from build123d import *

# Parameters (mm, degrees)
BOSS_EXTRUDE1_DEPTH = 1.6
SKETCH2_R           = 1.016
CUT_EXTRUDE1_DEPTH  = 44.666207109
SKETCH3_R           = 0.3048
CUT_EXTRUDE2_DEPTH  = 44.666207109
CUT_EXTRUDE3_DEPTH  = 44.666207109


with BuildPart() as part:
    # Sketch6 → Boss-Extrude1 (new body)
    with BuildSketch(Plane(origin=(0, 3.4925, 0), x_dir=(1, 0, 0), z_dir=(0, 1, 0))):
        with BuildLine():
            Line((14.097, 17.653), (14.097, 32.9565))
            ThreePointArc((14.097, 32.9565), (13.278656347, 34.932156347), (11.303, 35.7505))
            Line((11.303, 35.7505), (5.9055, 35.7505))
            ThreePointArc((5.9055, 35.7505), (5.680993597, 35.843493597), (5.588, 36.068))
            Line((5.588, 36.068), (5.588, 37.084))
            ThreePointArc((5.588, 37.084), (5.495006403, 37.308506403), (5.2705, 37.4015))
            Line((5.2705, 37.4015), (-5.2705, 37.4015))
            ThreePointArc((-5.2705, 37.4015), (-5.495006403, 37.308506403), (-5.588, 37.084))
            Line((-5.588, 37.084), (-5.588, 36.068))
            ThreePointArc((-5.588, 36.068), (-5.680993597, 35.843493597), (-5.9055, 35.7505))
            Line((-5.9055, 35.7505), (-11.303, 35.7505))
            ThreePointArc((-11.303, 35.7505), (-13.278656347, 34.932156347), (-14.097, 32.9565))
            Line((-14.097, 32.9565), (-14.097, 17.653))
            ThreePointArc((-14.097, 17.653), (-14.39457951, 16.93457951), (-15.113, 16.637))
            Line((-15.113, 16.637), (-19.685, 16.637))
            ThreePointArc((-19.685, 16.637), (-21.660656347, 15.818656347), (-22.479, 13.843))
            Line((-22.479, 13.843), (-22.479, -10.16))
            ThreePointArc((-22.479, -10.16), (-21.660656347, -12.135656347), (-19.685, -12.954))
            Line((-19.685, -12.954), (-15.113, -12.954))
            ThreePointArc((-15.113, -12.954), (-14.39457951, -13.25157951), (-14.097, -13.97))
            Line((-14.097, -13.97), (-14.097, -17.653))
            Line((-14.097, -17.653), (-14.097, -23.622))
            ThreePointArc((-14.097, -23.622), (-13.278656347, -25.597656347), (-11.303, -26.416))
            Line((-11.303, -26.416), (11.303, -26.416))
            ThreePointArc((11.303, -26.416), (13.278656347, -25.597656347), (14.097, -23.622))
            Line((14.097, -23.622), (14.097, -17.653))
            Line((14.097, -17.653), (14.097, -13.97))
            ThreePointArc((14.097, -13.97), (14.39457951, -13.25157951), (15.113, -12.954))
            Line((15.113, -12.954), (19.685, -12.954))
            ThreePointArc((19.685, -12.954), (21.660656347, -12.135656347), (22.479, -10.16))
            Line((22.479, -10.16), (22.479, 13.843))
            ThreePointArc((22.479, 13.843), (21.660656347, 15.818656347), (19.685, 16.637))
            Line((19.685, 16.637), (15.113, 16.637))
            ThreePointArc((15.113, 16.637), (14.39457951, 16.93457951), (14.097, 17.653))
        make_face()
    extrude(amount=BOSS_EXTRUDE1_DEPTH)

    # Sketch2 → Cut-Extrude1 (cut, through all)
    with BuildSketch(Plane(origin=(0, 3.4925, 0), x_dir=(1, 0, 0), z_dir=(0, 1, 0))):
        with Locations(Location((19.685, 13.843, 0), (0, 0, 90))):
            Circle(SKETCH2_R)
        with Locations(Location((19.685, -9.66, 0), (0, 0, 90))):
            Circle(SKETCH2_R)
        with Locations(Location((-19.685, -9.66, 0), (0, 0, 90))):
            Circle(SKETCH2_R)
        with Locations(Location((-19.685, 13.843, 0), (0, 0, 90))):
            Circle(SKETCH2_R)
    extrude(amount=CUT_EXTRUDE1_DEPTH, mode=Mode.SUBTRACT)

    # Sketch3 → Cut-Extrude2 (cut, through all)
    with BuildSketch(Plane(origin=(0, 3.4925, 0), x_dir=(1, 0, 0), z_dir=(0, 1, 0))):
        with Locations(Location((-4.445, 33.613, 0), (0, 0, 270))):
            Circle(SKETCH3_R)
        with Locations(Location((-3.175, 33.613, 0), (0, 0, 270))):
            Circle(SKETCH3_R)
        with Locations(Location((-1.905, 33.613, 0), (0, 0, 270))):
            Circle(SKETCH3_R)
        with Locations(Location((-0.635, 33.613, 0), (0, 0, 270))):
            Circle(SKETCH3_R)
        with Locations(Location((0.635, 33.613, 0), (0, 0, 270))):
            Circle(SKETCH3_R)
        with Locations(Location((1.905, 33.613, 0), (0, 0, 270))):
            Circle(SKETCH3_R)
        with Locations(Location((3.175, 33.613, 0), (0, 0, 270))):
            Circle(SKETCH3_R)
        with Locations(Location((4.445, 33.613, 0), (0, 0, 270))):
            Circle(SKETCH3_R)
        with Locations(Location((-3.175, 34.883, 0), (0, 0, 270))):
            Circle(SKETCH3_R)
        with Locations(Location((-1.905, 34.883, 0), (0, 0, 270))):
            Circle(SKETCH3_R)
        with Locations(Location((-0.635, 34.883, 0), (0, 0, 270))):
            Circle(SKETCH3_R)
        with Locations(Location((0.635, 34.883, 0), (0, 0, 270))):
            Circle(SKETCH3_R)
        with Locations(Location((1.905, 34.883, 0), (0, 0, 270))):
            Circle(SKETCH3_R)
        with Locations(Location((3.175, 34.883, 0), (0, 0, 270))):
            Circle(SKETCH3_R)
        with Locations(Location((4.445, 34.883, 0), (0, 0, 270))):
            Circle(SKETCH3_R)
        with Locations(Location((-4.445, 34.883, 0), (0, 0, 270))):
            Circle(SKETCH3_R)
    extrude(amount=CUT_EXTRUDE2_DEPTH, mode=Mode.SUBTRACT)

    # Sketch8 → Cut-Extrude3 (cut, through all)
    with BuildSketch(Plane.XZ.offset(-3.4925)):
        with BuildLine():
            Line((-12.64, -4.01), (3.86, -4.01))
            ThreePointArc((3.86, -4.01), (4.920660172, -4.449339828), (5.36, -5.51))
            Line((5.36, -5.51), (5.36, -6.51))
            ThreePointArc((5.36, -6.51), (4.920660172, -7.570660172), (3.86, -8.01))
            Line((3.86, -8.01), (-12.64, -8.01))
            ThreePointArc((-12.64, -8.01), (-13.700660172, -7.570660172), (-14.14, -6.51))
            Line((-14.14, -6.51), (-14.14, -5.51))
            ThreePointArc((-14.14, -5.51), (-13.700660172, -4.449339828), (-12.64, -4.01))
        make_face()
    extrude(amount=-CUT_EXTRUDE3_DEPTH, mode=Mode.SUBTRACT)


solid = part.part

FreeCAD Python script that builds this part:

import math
import FreeCAD as App
import Part
import Sketcher
from FreeCAD import Vector
Q = App.Units.Quantity

doc = App.newDocument("Part")
body = doc.addObject("PartDesign::Body", "Body")

# Sketch on XZ plane
sketch1 = body.newObject("Sketcher::SketchObject", "Sketch")
sketch1.AttachmentSupport = (doc.getObject("XZ_Plane"), [""])
sketch1.MapMode = "FlatFace"
sketch1.AttachmentOffset = App.Placement(Vector(0, 0, -0.1375 * 25.4), App.Rotation())
sketch1.addGeometry([
    Part.LineSegment(Vector(14.1, -17.65, 0), Vector(14.1, -32.96, 0)),  # 0
    Part.ArcOfCircle(Part.Circle(Vector(11.3, -32.96, 0), Vector(0, 0, 1), 2.79), math.radians(-90), math.radians(0)),  # 1
    Part.LineSegment(Vector(11.3, -35.75, 0), Vector(5.91, -35.75, 0)),  # 2
    Part.ArcOfCircle(Part.Circle(Vector(5.91, -36.07, 0), Vector(0, 0, 1), 0.32), math.radians(90), math.radians(180)),  # 3
    Part.LineSegment(Vector(5.59, -36.07, 0), Vector(5.59, -37.08, 0)),  # 4
    Part.ArcOfCircle(Part.Circle(Vector(5.27, -37.08, 0), Vector(0, 0, 1), 0.32), math.radians(-90), math.radians(0)),  # 5
    Part.LineSegment(Vector(5.27, -37.4, 0), Vector(-5.27, -37.4, 0)),  # 6
    Part.ArcOfCircle(Part.Circle(Vector(-5.27, -37.08, 0), Vector(0, 0, 1), 0.32), math.radians(180), math.radians(270)),  # 7
    Part.LineSegment(Vector(-5.59, -37.08, 0), Vector(-5.59, -36.07, 0)),  # 8
    Part.ArcOfCircle(Part.Circle(Vector(-5.91, -36.07, 0), Vector(0, 0, 1), 0.32), math.radians(0), math.radians(90)),  # 9
    Part.LineSegment(Vector(-5.91, -35.75, 0), Vector(-11.3, -35.75, 0)),  # 10
    Part.ArcOfCircle(Part.Circle(Vector(-11.3, -32.96, 0), Vector(0, 0, 1), 2.79), math.radians(180), math.radians(270)),  # 11
    Part.LineSegment(Vector(-14.1, -32.96, 0), Vector(-14.1, -17.65, 0)),  # 12
    Part.ArcOfCircle(Part.Circle(Vector(-15.11, -17.65, 0), Vector(0, 0, 1), 1.02), math.radians(0), math.radians(90)),  # 13
    Part.LineSegment(Vector(-15.11, -16.64, 0), Vector(-19.68, -16.64, 0)),  # 14
    Part.ArcOfCircle(Part.Circle(Vector(-19.69, -13.84, 0), Vector(0, 0, 1), 2.79), math.radians(180), math.radians(270)),  # 15
    Part.LineSegment(Vector(-22.48, -13.84, 0), Vector(-22.48, 10.16, 0)),  # 16
    Part.ArcOfCircle(Part.Circle(Vector(-19.69, 10.16, 0), Vector(0, 0, 1), 2.79), math.radians(90), math.radians(180)),  # 17
    Part.LineSegment(Vector(-19.68, 12.95, 0), Vector(-15.11, 12.95, 0)),  # 18
    Part.ArcOfCircle(Part.Circle(Vector(-15.11, 13.97, 0), Vector(0, 0, 1), 1.02), math.radians(-90), math.radians(0)),  # 19
    Part.LineSegment(Vector(-14.1, 13.97, 0), Vector(-14.1, 23.62, 0)),  # 20
    Part.ArcOfCircle(Part.Circle(Vector(-11.3, 23.62, 0), Vector(0, 0, 1), 2.79), math.radians(90), math.radians(180)),  # 21
    Part.LineSegment(Vector(-11.3, 26.42, 0), Vector(11.3, 26.42, 0)),  # 22
    Part.ArcOfCircle(Part.Circle(Vector(11.3, 23.62, 0), Vector(0, 0, 1), 2.79), math.radians(0), math.radians(90)),  # 23
    Part.LineSegment(Vector(14.1, 23.62, 0), Vector(14.1, 13.97, 0)),  # 24
    Part.ArcOfCircle(Part.Circle(Vector(15.11, 13.97, 0), Vector(0, 0, 1), 1.02), math.radians(180), math.radians(270)),  # 25
    Part.LineSegment(Vector(15.11, 12.95, 0), Vector(19.68, 12.95, 0)),  # 26
    Part.ArcOfCircle(Part.Circle(Vector(19.69, 10.16, 0), Vector(0, 0, 1), 2.79), math.radians(0), math.radians(90)),  # 27
    Part.LineSegment(Vector(22.48, 10.16, 0), Vector(22.48, -13.84, 0)),  # 28
    Part.ArcOfCircle(Part.Circle(Vector(19.69, -13.84, 0), Vector(0, 0, 1), 2.79), math.radians(-90), math.radians(0)),  # 29
    Part.LineSegment(Vector(19.68, -16.64, 0), Vector(15.11, -16.64, 0)),  # 30
    Part.ArcOfCircle(Part.Circle(Vector(15.11, -17.65, 0), Vector(0, 0, 1), 1.02), math.radians(90), math.radians(180)),  # 31
], False)
sketch1.addConstraint([
    Sketcher.Constraint("Tangent", 0, 2, 1, 2),
    Sketcher.Constraint("Tangent", 1, 1, 2, 1),
    Sketcher.Constraint("Tangent", 2, 2, 3, 1),
    Sketcher.Constraint("Tangent", 3, 2, 4, 1),
    Sketcher.Constraint("Tangent", 4, 2, 5, 2),
    Sketcher.Constraint("Tangent", 5, 1, 6, 1),
    Sketcher.Constraint("Tangent", 6, 2, 7, 2),
    Sketcher.Constraint("Tangent", 7, 1, 8, 1),
    Sketcher.Constraint("Tangent", 8, 2, 9, 1),
    Sketcher.Constraint("Tangent", 9, 2, 10, 1),
    Sketcher.Constraint("Tangent", 10, 2, 11, 2),
    Sketcher.Constraint("Tangent", 11, 1, 12, 1),
    Sketcher.Constraint("Tangent", 12, 2, 13, 1),
    Sketcher.Constraint("Tangent", 13, 2, 14, 1),
    Sketcher.Constraint("Tangent", 14, 2, 15, 2),
    Sketcher.Constraint("Tangent", 15, 1, 16, 1),
    Sketcher.Constraint("Tangent", 16, 2, 17, 2),
    Sketcher.Constraint("Tangent", 17, 1, 18, 1),
    Sketcher.Constraint("Tangent", 18, 2, 19, 1),
    Sketcher.Constraint("Tangent", 19, 2, 20, 1),
    Sketcher.Constraint("Tangent", 20, 2, 21, 2),
    Sketcher.Constraint("Tangent", 21, 1, 22, 1),
    Sketcher.Constraint("Tangent", 22, 2, 23, 2),
    Sketcher.Constraint("Tangent", 23, 1, 24, 1),
    Sketcher.Constraint("Tangent", 24, 2, 25, 1),
    Sketcher.Constraint("Tangent", 25, 2, 26, 1),
    Sketcher.Constraint("Tangent", 26, 2, 27, 2),
    Sketcher.Constraint("Tangent", 27, 1, 28, 1),
    Sketcher.Constraint("Tangent", 28, 2, 29, 2),
    Sketcher.Constraint("Tangent", 29, 1, 30, 1),
    Sketcher.Constraint("Tangent", 30, 2, 31, 1),
    Sketcher.Constraint("Tangent", 31, 2, 0, 1),
    Sketcher.Constraint("Vertical", 0),
    Sketcher.Constraint("Horizontal", 2),
    Sketcher.Constraint("Vertical", 4),
    Sketcher.Constraint("Horizontal", 6),
    Sketcher.Constraint("Vertical", 8),
    Sketcher.Constraint("Horizontal", 10),
    Sketcher.Constraint("Vertical", 12),
    Sketcher.Constraint("Horizontal", 14),
    Sketcher.Constraint("Vertical", 16),
    Sketcher.Constraint("Horizontal", 18),
    Sketcher.Constraint("Vertical", 20),
    Sketcher.Constraint("Horizontal", 22),
    Sketcher.Constraint("Vertical", 24),
    Sketcher.Constraint("Horizontal", 26),
    Sketcher.Constraint("Vertical", 28),
    Sketcher.Constraint("Horizontal", 30),
    Sketcher.Constraint("Equal", 3, 5),
    Sketcher.Constraint("Equal", 5, 7),
    Sketcher.Constraint("Equal", 7, 9),
    Sketcher.Constraint("Equal", 1, 11),
    Sketcher.Constraint("Equal", 11, 15),
    Sketcher.Constraint("Equal", 15, 17),
    Sketcher.Constraint("Equal", 13, 19),
    Sketcher.Constraint("Equal", 17, 21),
    Sketcher.Constraint("Equal", 21, 23),
    Sketcher.Constraint("Equal", 19, 25),
    Sketcher.Constraint("Equal", 23, 27),
    Sketcher.Constraint("Equal", 27, 29),
    Sketcher.Constraint("Equal", 25, 31),
    Sketcher.Constraint("Symmetric", 3, 3, 9, 3, -2),
    Sketcher.Constraint("Symmetric", 19, 3, 25, 3, -2),
    Sketcher.Constraint("Symmetric", 15, 3, 29, 3, -2),
    Sketcher.Constraint("Vertical", 13, 3, 19, 3),
    Sketcher.Constraint("Vertical", 1, 3, 23, 3),
    Sketcher.Constraint("Radius", 1, Q("0.11 in")),
    Sketcher.Constraint("Radius", 13, Q("0.04 in")),
    Sketcher.Constraint("DistanceX", 21, 3, 23, 1, Q("1 in")),
    Sketcher.Constraint("DistanceX", 14, 2, 14, 1, Q("0.18 in")),
    Sketcher.Constraint("DistanceY", 4, 2, 4, 1, Q("0.04 in")),
    Sketcher.Constraint("DistanceY", 20, 1, 20, 2, Q("0.38 in")),
    Sketcher.Constraint("DistanceY", -1, 1, 17, 3, Q("0.4 in")),
    Sketcher.Constraint("Radius", 3, Q("0.0125 in")),
    Sketcher.Constraint("DistanceX", 6, 2, 6, 1, Q("0.415 in")),
    Sketcher.Constraint("DistanceY", 16, 1, 16, 2, Q("0.945 in")),
    Sketcher.Constraint("DistanceY", 3, 3, -1, 1, Q("1.42 in")),
])
pad1 = body.newObject("PartDesign::Pad", "Pad")
pad1.Profile = sketch1
pad1.Length = 1.6
pad1.Reversed = True

# Sketch on XZ plane
sketch2 = body.newObject("Sketcher::SketchObject", "Sketch001")
sketch2.AttachmentSupport = (doc.getObject("XZ_Plane"), [""])
sketch2.MapMode = "FlatFace"
sketch2.AttachmentOffset = App.Placement(Vector(0, 0, -0.1375 * 25.4), App.Rotation())
sketch2.addGeometry([
    Part.Circle(Vector(19.7, -13.8, 0), Vector(0, 0, 1), 1),
    Part.Circle(Vector(19.7, 9.7, 0), Vector(0, 0, 1), 1),
    Part.Circle(Vector(-19.7, 9.7, 0), Vector(0, 0, 1), 1),
    Part.Circle(Vector(-19.7, -13.8, 0), Vector(0, 0, 1), 1),
], False)
sketch2.addConstraint([
    Sketcher.Constraint("Equal", 0, 1),
    Sketcher.Constraint("Equal", 1, 2),
    Sketcher.Constraint("Equal", 2, 3),
    Sketcher.Constraint("Symmetric", 1, 3, 2, 3, -2),
    Sketcher.Constraint("Symmetric", 0, 3, 3, 3, -2),
    Sketcher.Constraint("Vertical", 0, 3, 1, 3),
    Sketcher.Constraint("Diameter", 0, Q("0.08 in")),
    Sketcher.Constraint("DistanceX", 2, 3, 1, 3, Q("1.55 in")),
    Sketcher.Constraint("DistanceY", 0, 3, -1, 1, Q("0.545 in")),
    Sketcher.Constraint("DistanceY", -1, 1, 1, 3, 9.66),
])
pocket1 = body.newObject("PartDesign::Pocket", "Pocket")
pocket1.Profile = sketch2
pocket1.Type = "ThroughAll"

# Sketch on XZ plane
sketch3 = body.newObject("Sketcher::SketchObject", "Sketch002")
sketch3.AttachmentSupport = (doc.getObject("XZ_Plane"), [""])
sketch3.MapMode = "FlatFace"
sketch3.AttachmentOffset = App.Placement(Vector(0, 0, -0.1375 * 25.4), App.Rotation())
sketch3.addGeometry([
    Part.Circle(Vector(-4.45, -33.61, 0), Vector(0, 0, 1), 0.3),  # 0
    Part.Circle(Vector(-3.17, -33.61, 0), Vector(0, 0, 1), 0.3),  # 1
    Part.Circle(Vector(-1.91, -33.61, 0), Vector(0, 0, 1), 0.3),  # 2
    Part.Circle(Vector(-0.64, -33.61, 0), Vector(0, 0, 1), 0.3),  # 3
    Part.Circle(Vector(0.64, -33.61, 0), Vector(0, 0, 1), 0.3),  # 4
    Part.Circle(Vector(1.91, -33.61, 0), Vector(0, 0, 1), 0.3),  # 5
    Part.Circle(Vector(3.17, -33.61, 0), Vector(0, 0, 1), 0.3),  # 6
    Part.Circle(Vector(4.45, -33.61, 0), Vector(0, 0, 1), 0.3),  # 7
    Part.Circle(Vector(-3.17, -34.88, 0), Vector(0, 0, 1), 0.3),  # 8
    Part.Circle(Vector(-1.91, -34.88, 0), Vector(0, 0, 1), 0.3),  # 9
    Part.Circle(Vector(-0.64, -34.88, 0), Vector(0, 0, 1), 0.3),  # 10
    Part.Circle(Vector(0.64, -34.88, 0), Vector(0, 0, 1), 0.3),  # 11
    Part.Circle(Vector(1.91, -34.88, 0), Vector(0, 0, 1), 0.3),  # 12
    Part.Circle(Vector(3.17, -34.88, 0), Vector(0, 0, 1), 0.3),  # 13
    Part.Circle(Vector(4.45, -34.88, 0), Vector(0, 0, 1), 0.3),  # 14
    Part.Circle(Vector(-4.45, -34.88, 0), Vector(0, 0, 1), 0.3),  # 15
], False)
sketch3.addConstraint([
    Sketcher.Constraint("Equal", 0, 1),
    Sketcher.Constraint("Equal", 1, 2),
    Sketcher.Constraint("Equal", 2, 3),
    Sketcher.Constraint("Equal", 3, 4),
    Sketcher.Constraint("Equal", 4, 5),
    Sketcher.Constraint("Equal", 5, 6),
    Sketcher.Constraint("Equal", 6, 7),
    Sketcher.Constraint("Equal", 7, 8),
    Sketcher.Constraint("Equal", 8, 9),
    Sketcher.Constraint("Equal", 9, 10),
    Sketcher.Constraint("Equal", 10, 11),
    Sketcher.Constraint("Equal", 11, 12),
    Sketcher.Constraint("Equal", 12, 13),
    Sketcher.Constraint("Equal", 13, 14),
    Sketcher.Constraint("Equal", 14, 15),
    Sketcher.Constraint("Symmetric", 3, 3, 4, 3, -2),
    Sketcher.Constraint("Symmetric", 2, 3, 5, 3, -2),
    Sketcher.Constraint("Symmetric", 1, 3, 6, 3, -2),
    Sketcher.Constraint("Symmetric", 0, 3, 7, 3, -2),
    Sketcher.Constraint("Symmetric", 10, 3, 11, 3, -2),
    Sketcher.Constraint("Symmetric", 9, 3, 12, 3, -2),
    Sketcher.Constraint("Symmetric", 8, 3, 13, 3, -2),
    Sketcher.Constraint("Symmetric", 14, 3, 15, 3, -2),
    Sketcher.Constraint("Horizontal", 0, 3, 1, 3),
    Sketcher.Constraint("Horizontal", 1, 3, 2, 3),
    Sketcher.Constraint("Horizontal", 2, 3, 3, 3),
    Sketcher.Constraint("Horizontal", 8, 3, 9, 3),
    Sketcher.Constraint("Horizontal", 9, 3, 10, 3),
    Sketcher.Constraint("Horizontal", 13, 3, 14, 3),
    Sketcher.Constraint("Vertical", 1, 3, 8, 3),
    Sketcher.Constraint("Vertical", 2, 3, 9, 3),
    Sketcher.Constraint("Vertical", 3, 3, 10, 3),
    Sketcher.Constraint("Vertical", 7, 3, 14, 3),
    Sketcher.Constraint("Diameter", 0, Q("0.024 in")),
    Sketcher.Constraint("DistanceX", 0, 3, 2, 3, Q("0.1 in")),
    Sketcher.Constraint("DistanceX", 1, 3, 3, 3, Q("0.1 in")),
    Sketcher.Constraint("DistanceX", 2, 3, 4, 3, Q("0.1 in")),
    Sketcher.Constraint("DistanceX", 0, 3, 1, 3, Q("0.05 in")),
    Sketcher.Constraint("DistanceY", 8, 3, 1, 3, Q("0.05 in")),
    Sketcher.Constraint("DistanceY", 0, 3, -1, 1, 33.613),
])
pocket2 = body.newObject("PartDesign::Pocket", "Pocket001")
pocket2.Profile = sketch3
pocket2.Type = "ThroughAll"

# Sketch on XZ plane
sketch4 = body.newObject("Sketcher::SketchObject", "Sketch003")
sketch4.AttachmentSupport = (doc.getObject("XZ_Plane"), [""])
sketch4.MapMode = "FlatFace"
sketch4.AttachmentOffset = App.Placement(Vector(0, 0, -0.1375 * 25.4), App.Rotation())
sketch4.addGeometry([
    Part.LineSegment(Vector(3.9, -4, 0), Vector(-12.6, -4, 0)),  # 0
    Part.ArcOfCircle(Part.Circle(Vector(-12.6, -5.5, 0), Vector(0, 0, 1), 1.5), math.radians(90), math.radians(180)),  # 1
    Part.LineSegment(Vector(-14.1, -5.5, 0), Vector(-14.1, -6.5, 0)),  # 2
    Part.ArcOfCircle(Part.Circle(Vector(-12.6, -6.5, 0), Vector(0, 0, 1), 1.5), math.radians(180), math.radians(270)),  # 3
    Part.LineSegment(Vector(-12.6, -8, 0), Vector(3.9, -8, 0)),  # 4
    Part.ArcOfCircle(Part.Circle(Vector(3.9, -6.5, 0), Vector(0, 0, 1), 1.5), math.radians(-90), math.radians(0)),  # 5
    Part.LineSegment(Vector(5.4, -6.5, 0), Vector(5.4, -5.5, 0)),  # 6
    Part.ArcOfCircle(Part.Circle(Vector(3.9, -5.5, 0), Vector(0, 0, 1), 1.5), math.radians(0), math.radians(90)),  # 7
], False)
sketch4.addConstraint([
    Sketcher.Constraint("Tangent", 0, 2, 1, 1),
    Sketcher.Constraint("Tangent", 1, 2, 2, 1),
    Sketcher.Constraint("Tangent", 2, 2, 3, 1),
    Sketcher.Constraint("Tangent", 3, 2, 4, 1),
    Sketcher.Constraint("Tangent", 4, 2, 5, 1),
    Sketcher.Constraint("Tangent", 5, 2, 6, 1),
    Sketcher.Constraint("Tangent", 6, 2, 7, 1),
    Sketcher.Constraint("Tangent", 7, 2, 0, 1),
    Sketcher.Constraint("Horizontal", 0),
    Sketcher.Constraint("Vertical", 2),
    Sketcher.Constraint("Horizontal", 4),
    Sketcher.Constraint("Vertical", 6),
    Sketcher.Constraint("Equal", 1, 3),
    Sketcher.Constraint("Equal", 3, 5),
    Sketcher.Constraint("Equal", 5, 7),
    Sketcher.Constraint("Radius", 1, 1.5),
    Sketcher.Constraint("DistanceX", 0, 2, 0, 1, 16.5),
    Sketcher.Constraint("DistanceY", 2, 2, 2, 1, 1.0),
    Sketcher.Constraint("DistanceX", 1, 3, -1, 1, 12.64),
    Sketcher.Constraint("DistanceY", 1, 3, -1, 1, 5.51),
])
pocket3 = body.newObject("PartDesign::Pocket", "Pocket002")
pocket3.Profile = sketch4
pocket3.Type = "ThroughAll"

doc.recompute()
